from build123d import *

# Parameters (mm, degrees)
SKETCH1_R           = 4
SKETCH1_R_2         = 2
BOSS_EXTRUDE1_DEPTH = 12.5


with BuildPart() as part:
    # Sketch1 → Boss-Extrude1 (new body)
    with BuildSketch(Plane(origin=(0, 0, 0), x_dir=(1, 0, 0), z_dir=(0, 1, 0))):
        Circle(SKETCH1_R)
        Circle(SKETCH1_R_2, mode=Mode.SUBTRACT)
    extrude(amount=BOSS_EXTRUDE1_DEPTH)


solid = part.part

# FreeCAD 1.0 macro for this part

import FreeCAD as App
import Part
import Sketcher

V = App.Vector
Q = App.Units.Quantity

doc = App.newDocument("Part")
body = doc.addObject("PartDesign::Body", "Body")

sketch1 = body.newObject("Sketcher::SketchObject", "Sketch")
sketch1.AttachmentSupport = (doc.getObject("XZ_Plane"), [""])
sketch1.MapMode = "FlatFace"
sketch1.addGeometry([
    Part.Circle(V(0, 0, 0), V(0, 0, 1), 4),
    Part.Circle(V(0, 0, 0), V(0, 0, 1), 2),
], False)
sketch1.addConstraint([
    Sketcher.Constraint("Coincident", 0, 3, -1, 1),
    Sketcher.Constraint("Coincident", 1, 3, -1, 1),
    Sketcher.Constraint("Diameter", 0, Q("8 mm")),
    Sketcher.Constraint("Diameter", 1, Q("4 mm")),
])
pad1 = body.newObject("PartDesign::Pad", "Pad")
pad1.Profile = sketch1
pad1.Length = 12.5
pad1.Reversed = True

doc.recompute()
